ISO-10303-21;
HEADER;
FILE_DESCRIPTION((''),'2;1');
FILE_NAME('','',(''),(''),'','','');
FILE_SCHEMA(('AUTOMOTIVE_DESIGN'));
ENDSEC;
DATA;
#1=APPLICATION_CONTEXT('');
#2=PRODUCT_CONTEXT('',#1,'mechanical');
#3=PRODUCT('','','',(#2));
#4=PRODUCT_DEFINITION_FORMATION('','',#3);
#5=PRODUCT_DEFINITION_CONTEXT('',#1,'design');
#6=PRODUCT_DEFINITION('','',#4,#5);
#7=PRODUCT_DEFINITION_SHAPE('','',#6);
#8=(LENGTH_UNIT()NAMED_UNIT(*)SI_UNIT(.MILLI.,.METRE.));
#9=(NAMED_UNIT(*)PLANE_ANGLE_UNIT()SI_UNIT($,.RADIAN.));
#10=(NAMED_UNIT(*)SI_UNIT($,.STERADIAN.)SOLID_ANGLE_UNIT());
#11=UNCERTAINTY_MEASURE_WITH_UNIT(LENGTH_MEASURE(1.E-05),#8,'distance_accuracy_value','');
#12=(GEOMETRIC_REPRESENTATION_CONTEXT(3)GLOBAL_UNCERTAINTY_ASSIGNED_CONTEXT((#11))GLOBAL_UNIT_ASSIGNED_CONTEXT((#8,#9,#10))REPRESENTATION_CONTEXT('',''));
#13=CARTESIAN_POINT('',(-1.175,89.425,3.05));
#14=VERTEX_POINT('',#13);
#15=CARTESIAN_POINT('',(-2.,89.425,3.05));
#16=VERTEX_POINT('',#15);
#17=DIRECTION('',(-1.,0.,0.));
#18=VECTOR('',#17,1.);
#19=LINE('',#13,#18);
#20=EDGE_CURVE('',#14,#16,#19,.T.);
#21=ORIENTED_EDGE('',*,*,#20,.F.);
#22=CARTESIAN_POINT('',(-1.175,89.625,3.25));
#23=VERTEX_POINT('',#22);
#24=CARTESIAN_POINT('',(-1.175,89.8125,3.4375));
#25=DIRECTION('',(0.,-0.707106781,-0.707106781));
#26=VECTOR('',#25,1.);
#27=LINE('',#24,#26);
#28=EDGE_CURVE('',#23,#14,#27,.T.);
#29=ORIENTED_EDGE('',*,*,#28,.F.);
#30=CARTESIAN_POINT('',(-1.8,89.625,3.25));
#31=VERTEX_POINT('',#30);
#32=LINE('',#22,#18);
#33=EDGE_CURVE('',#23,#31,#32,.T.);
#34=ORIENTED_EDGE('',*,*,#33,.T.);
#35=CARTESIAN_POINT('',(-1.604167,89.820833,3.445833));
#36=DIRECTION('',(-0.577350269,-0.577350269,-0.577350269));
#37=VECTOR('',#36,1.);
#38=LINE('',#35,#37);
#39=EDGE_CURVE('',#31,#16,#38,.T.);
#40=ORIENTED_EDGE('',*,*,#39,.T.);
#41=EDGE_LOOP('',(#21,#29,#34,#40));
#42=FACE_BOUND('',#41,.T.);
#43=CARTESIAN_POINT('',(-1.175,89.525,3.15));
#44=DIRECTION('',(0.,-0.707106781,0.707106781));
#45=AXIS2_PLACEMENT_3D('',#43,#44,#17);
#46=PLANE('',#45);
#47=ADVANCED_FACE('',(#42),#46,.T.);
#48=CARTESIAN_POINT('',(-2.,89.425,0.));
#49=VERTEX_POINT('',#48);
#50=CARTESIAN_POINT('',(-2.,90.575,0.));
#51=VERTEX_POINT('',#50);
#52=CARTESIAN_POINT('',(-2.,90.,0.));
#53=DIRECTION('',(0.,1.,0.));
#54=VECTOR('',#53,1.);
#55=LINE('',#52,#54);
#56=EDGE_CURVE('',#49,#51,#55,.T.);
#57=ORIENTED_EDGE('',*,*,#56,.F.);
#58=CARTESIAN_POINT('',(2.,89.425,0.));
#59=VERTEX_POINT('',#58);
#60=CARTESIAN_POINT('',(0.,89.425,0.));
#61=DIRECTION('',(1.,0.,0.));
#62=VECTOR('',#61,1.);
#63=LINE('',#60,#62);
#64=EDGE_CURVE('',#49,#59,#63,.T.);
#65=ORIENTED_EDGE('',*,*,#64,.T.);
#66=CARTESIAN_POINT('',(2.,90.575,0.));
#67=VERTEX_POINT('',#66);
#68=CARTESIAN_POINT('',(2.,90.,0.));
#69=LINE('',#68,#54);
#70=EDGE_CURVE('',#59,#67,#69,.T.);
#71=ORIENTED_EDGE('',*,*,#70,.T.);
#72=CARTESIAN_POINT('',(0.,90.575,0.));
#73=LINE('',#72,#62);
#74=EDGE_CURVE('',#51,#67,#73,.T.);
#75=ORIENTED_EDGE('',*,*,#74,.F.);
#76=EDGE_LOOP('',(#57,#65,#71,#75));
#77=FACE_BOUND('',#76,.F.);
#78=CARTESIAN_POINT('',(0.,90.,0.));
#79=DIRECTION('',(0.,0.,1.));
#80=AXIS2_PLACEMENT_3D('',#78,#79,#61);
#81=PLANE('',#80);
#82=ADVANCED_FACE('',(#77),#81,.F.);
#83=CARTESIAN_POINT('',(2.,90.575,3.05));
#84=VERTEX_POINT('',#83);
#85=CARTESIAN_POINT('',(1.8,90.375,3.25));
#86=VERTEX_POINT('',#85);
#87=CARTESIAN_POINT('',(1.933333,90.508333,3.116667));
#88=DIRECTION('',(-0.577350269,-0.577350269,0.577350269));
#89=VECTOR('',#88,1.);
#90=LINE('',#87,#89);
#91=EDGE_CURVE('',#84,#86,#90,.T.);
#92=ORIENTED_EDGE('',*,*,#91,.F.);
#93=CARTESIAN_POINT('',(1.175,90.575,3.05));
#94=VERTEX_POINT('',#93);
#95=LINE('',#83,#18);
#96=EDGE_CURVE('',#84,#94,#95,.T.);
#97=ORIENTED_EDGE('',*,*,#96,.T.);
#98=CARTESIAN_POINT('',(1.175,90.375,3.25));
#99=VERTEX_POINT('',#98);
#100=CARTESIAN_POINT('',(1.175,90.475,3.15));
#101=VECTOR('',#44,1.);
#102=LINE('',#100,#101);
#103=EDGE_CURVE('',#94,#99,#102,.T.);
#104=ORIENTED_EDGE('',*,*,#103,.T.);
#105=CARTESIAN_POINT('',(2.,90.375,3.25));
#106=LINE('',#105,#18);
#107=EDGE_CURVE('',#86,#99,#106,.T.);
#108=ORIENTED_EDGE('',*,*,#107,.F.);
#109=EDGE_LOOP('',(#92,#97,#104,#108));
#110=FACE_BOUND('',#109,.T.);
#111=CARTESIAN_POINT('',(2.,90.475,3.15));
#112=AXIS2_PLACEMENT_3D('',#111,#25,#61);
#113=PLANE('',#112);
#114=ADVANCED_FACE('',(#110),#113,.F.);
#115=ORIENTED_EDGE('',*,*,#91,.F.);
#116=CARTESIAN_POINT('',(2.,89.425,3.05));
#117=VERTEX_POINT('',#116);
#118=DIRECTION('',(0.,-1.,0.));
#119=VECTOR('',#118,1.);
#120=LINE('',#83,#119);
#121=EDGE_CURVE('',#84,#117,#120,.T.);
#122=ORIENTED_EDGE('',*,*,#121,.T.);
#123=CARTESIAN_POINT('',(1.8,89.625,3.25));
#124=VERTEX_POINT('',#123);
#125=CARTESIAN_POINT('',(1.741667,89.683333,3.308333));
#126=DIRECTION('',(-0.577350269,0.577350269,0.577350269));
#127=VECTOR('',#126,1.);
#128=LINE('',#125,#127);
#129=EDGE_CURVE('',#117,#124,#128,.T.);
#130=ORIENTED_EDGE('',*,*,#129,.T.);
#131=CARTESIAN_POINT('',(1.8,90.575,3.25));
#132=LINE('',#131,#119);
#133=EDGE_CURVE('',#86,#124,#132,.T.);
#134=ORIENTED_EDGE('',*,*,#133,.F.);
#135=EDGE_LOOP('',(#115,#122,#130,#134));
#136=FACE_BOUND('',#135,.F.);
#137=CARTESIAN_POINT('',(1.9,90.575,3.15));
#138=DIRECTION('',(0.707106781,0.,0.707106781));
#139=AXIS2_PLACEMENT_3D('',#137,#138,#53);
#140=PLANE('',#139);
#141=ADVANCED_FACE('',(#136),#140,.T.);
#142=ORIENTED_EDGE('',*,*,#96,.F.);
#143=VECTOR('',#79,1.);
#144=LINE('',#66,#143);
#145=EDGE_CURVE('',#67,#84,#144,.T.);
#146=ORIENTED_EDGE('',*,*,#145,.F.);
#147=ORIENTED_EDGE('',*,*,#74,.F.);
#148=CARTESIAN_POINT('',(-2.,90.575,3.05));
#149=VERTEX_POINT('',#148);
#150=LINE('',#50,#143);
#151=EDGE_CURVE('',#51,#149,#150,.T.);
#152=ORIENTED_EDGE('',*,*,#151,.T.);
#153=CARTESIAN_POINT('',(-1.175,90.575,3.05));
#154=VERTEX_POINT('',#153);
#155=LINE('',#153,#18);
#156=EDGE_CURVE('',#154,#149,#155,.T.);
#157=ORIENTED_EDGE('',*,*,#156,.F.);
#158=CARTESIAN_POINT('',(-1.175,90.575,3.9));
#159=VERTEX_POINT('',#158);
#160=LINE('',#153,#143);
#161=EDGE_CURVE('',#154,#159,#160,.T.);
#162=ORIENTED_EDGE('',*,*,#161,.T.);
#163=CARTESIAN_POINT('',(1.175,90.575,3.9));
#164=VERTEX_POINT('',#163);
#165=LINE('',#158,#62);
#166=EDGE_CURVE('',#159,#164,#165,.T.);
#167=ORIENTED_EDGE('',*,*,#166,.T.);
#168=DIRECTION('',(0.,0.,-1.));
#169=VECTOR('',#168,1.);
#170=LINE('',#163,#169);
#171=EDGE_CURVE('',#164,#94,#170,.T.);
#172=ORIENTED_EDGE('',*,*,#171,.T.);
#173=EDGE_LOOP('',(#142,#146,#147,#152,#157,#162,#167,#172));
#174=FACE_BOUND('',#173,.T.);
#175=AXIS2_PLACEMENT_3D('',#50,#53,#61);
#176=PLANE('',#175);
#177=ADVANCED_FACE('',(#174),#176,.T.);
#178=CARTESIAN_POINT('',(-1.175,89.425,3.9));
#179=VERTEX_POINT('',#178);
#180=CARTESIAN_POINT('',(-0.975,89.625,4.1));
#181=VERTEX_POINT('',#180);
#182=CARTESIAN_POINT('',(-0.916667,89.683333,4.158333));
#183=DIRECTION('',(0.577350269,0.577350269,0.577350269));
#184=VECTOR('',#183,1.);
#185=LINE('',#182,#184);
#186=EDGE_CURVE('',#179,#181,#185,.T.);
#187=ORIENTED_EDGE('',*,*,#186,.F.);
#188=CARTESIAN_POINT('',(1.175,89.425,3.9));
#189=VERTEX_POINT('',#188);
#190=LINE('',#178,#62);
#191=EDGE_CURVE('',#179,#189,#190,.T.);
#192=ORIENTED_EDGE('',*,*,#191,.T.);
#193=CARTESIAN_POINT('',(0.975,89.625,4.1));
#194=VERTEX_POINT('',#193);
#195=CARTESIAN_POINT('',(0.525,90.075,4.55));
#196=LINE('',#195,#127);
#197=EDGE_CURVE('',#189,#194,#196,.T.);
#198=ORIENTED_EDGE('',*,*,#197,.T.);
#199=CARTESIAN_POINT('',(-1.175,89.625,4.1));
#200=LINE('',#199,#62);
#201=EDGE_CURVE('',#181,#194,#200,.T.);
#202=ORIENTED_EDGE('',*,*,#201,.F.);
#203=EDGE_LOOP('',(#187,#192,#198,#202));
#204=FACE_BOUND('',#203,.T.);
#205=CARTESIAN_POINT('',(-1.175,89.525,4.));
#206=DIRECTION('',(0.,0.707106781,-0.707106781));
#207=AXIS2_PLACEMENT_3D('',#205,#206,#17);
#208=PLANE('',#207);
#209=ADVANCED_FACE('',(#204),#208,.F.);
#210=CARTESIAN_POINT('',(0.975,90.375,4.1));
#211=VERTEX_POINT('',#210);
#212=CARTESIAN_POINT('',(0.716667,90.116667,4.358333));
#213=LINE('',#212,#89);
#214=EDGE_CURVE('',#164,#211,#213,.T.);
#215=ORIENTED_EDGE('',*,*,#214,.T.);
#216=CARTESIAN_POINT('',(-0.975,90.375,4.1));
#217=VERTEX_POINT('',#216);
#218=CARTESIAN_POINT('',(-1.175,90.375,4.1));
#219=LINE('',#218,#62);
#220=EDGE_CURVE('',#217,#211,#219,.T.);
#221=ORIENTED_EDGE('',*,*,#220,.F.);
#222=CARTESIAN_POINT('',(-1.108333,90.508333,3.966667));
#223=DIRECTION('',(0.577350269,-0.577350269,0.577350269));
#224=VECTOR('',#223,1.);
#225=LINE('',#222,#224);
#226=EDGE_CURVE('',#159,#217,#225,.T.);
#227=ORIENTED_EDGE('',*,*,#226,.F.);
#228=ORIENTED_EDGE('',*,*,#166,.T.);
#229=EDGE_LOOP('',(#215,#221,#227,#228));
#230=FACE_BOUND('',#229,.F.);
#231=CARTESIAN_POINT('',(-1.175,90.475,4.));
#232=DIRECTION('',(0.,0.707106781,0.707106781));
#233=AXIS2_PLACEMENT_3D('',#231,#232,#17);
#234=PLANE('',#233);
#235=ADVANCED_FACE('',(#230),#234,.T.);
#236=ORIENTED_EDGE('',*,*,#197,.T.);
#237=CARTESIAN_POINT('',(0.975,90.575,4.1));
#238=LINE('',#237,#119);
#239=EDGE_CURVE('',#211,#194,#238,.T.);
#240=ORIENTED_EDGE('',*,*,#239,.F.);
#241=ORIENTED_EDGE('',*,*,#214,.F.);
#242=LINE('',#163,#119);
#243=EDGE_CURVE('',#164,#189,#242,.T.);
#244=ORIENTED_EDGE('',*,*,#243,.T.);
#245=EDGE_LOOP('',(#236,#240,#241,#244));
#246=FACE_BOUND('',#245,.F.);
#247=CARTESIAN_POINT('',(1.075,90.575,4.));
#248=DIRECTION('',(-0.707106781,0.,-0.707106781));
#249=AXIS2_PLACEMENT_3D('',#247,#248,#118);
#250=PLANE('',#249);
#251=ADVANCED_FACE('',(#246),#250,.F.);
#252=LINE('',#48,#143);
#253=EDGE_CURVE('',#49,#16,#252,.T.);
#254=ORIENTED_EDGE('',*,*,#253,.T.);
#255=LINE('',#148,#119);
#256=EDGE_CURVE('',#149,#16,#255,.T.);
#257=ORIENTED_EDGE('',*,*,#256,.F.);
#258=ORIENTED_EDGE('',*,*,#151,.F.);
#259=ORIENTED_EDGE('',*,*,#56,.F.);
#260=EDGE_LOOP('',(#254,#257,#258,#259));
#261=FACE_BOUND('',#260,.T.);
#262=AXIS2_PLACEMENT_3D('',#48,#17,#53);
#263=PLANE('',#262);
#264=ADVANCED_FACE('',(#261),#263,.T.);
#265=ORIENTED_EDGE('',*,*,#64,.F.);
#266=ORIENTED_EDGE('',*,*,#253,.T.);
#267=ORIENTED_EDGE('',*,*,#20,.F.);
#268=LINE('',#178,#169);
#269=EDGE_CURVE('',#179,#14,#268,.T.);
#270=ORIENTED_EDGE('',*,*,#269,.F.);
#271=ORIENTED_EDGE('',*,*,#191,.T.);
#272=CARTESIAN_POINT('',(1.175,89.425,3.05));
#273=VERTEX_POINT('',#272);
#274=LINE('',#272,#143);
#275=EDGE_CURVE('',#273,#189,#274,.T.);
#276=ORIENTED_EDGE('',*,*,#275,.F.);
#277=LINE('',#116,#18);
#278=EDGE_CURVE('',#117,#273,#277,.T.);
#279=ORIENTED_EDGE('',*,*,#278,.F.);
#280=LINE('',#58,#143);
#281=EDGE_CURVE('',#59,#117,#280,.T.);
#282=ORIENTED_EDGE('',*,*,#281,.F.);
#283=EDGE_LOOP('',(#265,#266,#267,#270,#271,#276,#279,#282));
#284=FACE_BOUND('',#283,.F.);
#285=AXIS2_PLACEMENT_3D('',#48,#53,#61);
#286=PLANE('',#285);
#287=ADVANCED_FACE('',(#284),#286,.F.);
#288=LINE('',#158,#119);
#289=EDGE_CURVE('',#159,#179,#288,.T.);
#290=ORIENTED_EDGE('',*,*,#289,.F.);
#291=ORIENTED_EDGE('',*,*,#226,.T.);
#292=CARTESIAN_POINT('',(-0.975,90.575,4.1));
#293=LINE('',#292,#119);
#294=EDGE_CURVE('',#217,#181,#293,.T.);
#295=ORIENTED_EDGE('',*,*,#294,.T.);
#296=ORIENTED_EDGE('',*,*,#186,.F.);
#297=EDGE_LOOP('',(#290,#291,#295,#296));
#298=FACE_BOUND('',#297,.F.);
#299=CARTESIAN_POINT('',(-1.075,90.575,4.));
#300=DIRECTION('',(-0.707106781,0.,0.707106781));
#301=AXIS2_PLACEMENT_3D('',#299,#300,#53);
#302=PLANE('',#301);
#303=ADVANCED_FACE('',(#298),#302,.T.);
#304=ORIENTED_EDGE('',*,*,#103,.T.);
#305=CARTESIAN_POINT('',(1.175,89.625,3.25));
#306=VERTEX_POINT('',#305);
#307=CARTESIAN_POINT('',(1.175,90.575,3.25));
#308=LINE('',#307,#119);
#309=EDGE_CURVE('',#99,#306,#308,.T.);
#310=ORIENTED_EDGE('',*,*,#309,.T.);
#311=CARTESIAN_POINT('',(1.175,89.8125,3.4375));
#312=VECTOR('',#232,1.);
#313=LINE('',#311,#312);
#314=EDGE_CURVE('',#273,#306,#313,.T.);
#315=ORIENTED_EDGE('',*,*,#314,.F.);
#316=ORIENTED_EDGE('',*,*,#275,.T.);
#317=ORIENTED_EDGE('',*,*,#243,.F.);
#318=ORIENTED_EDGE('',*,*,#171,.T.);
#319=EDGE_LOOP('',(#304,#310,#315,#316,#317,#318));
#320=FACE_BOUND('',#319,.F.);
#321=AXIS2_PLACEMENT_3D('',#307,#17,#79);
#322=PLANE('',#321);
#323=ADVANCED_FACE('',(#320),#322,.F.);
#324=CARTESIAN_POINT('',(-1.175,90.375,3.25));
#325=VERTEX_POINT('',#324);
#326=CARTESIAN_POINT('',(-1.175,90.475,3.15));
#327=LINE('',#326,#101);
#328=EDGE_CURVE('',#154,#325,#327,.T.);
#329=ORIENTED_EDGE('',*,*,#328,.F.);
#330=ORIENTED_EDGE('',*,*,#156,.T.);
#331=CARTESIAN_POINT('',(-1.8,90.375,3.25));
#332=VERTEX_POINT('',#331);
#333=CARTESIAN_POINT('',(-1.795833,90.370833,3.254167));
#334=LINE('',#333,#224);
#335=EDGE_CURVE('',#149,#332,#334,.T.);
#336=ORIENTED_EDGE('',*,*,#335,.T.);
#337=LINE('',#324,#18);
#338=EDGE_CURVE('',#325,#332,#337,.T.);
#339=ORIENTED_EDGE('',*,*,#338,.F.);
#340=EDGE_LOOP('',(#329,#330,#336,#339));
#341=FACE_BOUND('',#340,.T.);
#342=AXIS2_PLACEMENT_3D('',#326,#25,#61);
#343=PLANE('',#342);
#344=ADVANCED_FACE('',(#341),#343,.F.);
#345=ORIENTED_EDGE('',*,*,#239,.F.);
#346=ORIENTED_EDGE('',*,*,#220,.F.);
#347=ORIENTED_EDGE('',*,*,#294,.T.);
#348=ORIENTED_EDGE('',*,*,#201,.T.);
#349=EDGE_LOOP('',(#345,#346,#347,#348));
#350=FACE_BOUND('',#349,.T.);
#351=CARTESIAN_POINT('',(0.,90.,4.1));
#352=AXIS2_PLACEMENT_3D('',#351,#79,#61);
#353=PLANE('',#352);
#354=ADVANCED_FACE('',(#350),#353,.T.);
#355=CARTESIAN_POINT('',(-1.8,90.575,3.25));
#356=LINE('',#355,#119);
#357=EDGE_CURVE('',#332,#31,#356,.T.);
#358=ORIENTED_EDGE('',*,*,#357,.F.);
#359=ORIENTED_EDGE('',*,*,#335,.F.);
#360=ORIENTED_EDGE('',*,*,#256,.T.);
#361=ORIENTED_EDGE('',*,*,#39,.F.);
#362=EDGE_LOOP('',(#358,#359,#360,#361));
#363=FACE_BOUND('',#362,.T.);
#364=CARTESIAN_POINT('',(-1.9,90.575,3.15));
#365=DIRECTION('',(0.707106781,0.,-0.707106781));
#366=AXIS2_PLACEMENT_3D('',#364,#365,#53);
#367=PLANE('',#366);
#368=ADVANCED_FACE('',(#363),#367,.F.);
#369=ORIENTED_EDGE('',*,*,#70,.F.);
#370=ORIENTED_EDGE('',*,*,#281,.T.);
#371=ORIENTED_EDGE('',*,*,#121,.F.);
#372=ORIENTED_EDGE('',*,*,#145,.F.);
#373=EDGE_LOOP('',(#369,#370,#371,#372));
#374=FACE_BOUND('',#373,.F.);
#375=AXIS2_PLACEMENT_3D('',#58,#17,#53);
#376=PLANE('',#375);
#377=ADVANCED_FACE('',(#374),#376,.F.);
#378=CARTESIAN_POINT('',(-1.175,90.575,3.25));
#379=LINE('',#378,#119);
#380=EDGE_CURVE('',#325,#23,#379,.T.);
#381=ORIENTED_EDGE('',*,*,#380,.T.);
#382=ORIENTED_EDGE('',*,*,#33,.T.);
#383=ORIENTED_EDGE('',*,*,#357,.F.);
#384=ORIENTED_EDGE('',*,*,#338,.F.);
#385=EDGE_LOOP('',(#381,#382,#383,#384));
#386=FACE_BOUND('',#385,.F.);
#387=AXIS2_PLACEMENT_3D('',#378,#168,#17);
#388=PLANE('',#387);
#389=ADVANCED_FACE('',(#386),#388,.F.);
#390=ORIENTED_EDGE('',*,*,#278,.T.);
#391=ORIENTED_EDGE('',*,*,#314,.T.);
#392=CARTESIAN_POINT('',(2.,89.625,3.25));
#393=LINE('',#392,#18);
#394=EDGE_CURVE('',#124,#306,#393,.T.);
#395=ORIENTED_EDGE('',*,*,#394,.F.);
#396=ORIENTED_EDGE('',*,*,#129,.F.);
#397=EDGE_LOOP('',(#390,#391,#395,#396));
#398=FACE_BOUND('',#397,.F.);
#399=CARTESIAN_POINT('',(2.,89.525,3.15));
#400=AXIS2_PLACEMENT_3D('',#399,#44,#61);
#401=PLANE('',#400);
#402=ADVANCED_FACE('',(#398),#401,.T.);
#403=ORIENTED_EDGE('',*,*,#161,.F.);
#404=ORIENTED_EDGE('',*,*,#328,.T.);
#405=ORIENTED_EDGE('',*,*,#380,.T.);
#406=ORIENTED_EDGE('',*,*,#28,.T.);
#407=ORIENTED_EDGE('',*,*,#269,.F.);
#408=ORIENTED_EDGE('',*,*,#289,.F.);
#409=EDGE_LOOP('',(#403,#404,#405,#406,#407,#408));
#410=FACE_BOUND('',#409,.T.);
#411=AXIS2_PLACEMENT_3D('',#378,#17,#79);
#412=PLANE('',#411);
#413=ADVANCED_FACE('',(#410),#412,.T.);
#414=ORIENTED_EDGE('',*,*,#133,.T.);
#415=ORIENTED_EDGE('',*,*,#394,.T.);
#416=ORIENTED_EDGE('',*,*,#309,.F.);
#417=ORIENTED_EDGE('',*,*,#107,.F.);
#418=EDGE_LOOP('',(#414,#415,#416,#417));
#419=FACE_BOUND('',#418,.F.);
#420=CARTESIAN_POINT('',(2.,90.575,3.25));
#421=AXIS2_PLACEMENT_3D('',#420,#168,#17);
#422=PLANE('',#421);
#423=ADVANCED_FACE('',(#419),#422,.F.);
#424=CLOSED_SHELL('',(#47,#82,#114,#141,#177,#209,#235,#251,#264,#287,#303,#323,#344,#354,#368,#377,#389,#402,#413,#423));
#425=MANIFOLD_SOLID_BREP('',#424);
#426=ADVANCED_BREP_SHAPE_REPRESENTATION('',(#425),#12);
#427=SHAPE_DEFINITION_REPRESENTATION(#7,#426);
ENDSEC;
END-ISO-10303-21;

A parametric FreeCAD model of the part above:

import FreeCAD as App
import Part
import Sketcher

V = App.Vector


def edges_at(feature, points):
    """Names of the edges that pass closest to the given points."""
    edges = feature.Shape.Edges
    near = lambda p: min(range(len(edges)), key=lambda i: edges[i].distToShape(Part.Vertex(*p))[0])
    return sorted({f"Edge{near(p) + 1}" for p in points})


def add_polygon(sketch, points):
    """Adds a closed chain of lines whose ends are joined by coincident constraints."""
    first, n = sketch.GeometryCount, len(points)
    for a, b in zip(points, points[1:] + points[:1]):
        sketch.addGeometry(Part.LineSegment(App.Vector(*a, 0), App.Vector(*b, 0)), False)
    for i in range(n):
        sketch.addConstraint(Sketcher.Constraint("Coincident", first + i, 2, first + (i + 1) % n, 1))

doc = App.newDocument("Part")
params = doc.addObject("Spreadsheet::Sheet", "Params")
for row, (alias, value) in enumerate([
    ("sketch1_width", "4 mm"),
    ("sketch1_height", "1.15 mm"),
    ("pad1_length", "4.1 mm"),
    ("sketch2_height", "0.85 mm"),
    ("pocket1_length", "5 mm"),
    ("chamfer_size", "0.2 mm"),
], start=1):
    params.set(f"A{row}", alias)
    params.set(f"B{row}", "=" + value)
    params.setAlias(f"B{row}", alias)

body = doc.addObject("PartDesign::Body", "Body")

# Sketch on XY plane
sketch1 = doc.addObject("Sketcher::SketchObject", "Sketch")
body.addObject(sketch1)
sketch1.AttachmentSupport = (doc.XY_Plane, [""])
sketch1.MapMode = "FlatFace"
add_polygon(sketch1, [(-2, 0.6), (-2, -0.6), (2, -0.6), (2, 0.6)])  # lines 0-3
sketch1.addConstraint(Sketcher.Constraint("Vertical", 0))
sketch1.addConstraint(Sketcher.Constraint("Horizontal", 1))
sketch1.addConstraint(Sketcher.Constraint("Vertical", 2))
sketch1.addConstraint(Sketcher.Constraint("Horizontal", 3))
sketch1.addConstraint(Sketcher.Constraint("Symmetric", 0, 2, 2, 2, -1, 1))
sketch1.addConstraint(Sketcher.Constraint("DistanceX", 1, 1, 1, 2, 4.0))
sketch1.addConstraint(Sketcher.Constraint("DistanceY", 0, 2, 0, 1, 1.15))
sketch1.setExpression("Constraints[9]", "Params.sketch1_width")
sketch1.setExpression("Constraints[10]", "Params.sketch1_height")
pad1 = doc.addObject("PartDesign::Pad", "Pad")
body.addObject(pad1)
pad1.Profile = sketch1
pad1.setExpression("Length", "Params.pad1_length")

# Sketch on XZ plane
sketch2 = doc.addObject("Sketcher::SketchObject", "Sketch001")
body.addObject(sketch2)
sketch2.AttachmentSupport = (doc.XZ_Plane, [""])
sketch2.MapMode = "FlatFace"
sketch2.AttachmentOffset = App.Placement(V(0, 0, -0.575), App.Rotation())
add_polygon(sketch2, [(2, 4.1), (2, 3.2), (1.2, 3.2), (1.2, 4.1)])  # lines 0-3
add_polygon(sketch2, [(-1.2, 4.1), (-1.2, 3.2), (-2, 3.2), (-2, 4.1)])  # lines 4-7
sketch2.addConstraint(Sketcher.Constraint("Vertical", 0))
sketch2.addConstraint(Sketcher.Constraint("Horizontal", 1))
sketch2.addConstraint(Sketcher.Constraint("Vertical", 2))
sketch2.addConstraint(Sketcher.Constraint("Horizontal", 3))
sketch2.addConstraint(Sketcher.Constraint("Vertical", 4))
sketch2.addConstraint(Sketcher.Constraint("Horizontal", 5))
sketch2.addConstraint(Sketcher.Constraint("Vertical", 6))
sketch2.addConstraint(Sketcher.Constraint("Horizontal", 7))
sketch2.addConstraint(Sketcher.Constraint("Symmetric", 1, 2, 4, 2, -2))
sketch2.addConstraint(Sketcher.Constraint("Symmetric", 3, 2, 6, 2, -2))
sketch2.addConstraint(Sketcher.Constraint("DistanceX", -1, 1, 0, 2, 2.0))
sketch2.addConstraint(Sketcher.Constraint("DistanceY", 0, 2, 0, 1, 0.85))
sketch2.addConstraint(Sketcher.Constraint("DistanceY", -1, 1, 2, 2, 4.1))
sketch2.addConstraint(Sketcher.Constraint("DistanceX", 1, 2, 1, 1, 0.825))
sketch2.setExpression("Constraints[19]", "Params.sketch2_height")
pocket1 = doc.addObject("PartDesign::Pocket", "Pocket")
body.addObject(pocket1)
pocket1.Profile = sketch2
pocket1.setExpression("Length", "Params.pocket1_length")
pocket1.Reversed = True
doc.recompute()

chamfer = doc.addObject("PartDesign::Chamfer", "Chamfer")
body.addObject(chamfer)
chamfer.Base = (pocket1, edges_at(pocket1, [
    (0, 0.575, 4.1),
    (0, -0.575, 4.1),
    (1.587, 0.575, 3.25),
    (-1.587, 0.575, 3.25),
    (-1.587, -0.575, 3.25),
    (1.587, -0.575, 3.25),
    (2, 0, 3.25),
    (-2, 0, 3.25),
    (1.175, 0, 4.1),
    (-1.175, 0, 4.1),
]))
chamfer.setExpression("Size", "Params.chamfer_size")
body2 = doc.addObject("PartDesign::Body", "Body001")
doc.recompute()

body.Placement = App.Placement(V(0, 90, 0), App.Rotation(V(0, 0, 1), 0))
boolean = doc.addObject("PartDesign::Boolean", "Boolean")
body2.addObject(boolean)
boolean.Type = "Fuse"
boolean.addObjects([body])

doc.recompute()
